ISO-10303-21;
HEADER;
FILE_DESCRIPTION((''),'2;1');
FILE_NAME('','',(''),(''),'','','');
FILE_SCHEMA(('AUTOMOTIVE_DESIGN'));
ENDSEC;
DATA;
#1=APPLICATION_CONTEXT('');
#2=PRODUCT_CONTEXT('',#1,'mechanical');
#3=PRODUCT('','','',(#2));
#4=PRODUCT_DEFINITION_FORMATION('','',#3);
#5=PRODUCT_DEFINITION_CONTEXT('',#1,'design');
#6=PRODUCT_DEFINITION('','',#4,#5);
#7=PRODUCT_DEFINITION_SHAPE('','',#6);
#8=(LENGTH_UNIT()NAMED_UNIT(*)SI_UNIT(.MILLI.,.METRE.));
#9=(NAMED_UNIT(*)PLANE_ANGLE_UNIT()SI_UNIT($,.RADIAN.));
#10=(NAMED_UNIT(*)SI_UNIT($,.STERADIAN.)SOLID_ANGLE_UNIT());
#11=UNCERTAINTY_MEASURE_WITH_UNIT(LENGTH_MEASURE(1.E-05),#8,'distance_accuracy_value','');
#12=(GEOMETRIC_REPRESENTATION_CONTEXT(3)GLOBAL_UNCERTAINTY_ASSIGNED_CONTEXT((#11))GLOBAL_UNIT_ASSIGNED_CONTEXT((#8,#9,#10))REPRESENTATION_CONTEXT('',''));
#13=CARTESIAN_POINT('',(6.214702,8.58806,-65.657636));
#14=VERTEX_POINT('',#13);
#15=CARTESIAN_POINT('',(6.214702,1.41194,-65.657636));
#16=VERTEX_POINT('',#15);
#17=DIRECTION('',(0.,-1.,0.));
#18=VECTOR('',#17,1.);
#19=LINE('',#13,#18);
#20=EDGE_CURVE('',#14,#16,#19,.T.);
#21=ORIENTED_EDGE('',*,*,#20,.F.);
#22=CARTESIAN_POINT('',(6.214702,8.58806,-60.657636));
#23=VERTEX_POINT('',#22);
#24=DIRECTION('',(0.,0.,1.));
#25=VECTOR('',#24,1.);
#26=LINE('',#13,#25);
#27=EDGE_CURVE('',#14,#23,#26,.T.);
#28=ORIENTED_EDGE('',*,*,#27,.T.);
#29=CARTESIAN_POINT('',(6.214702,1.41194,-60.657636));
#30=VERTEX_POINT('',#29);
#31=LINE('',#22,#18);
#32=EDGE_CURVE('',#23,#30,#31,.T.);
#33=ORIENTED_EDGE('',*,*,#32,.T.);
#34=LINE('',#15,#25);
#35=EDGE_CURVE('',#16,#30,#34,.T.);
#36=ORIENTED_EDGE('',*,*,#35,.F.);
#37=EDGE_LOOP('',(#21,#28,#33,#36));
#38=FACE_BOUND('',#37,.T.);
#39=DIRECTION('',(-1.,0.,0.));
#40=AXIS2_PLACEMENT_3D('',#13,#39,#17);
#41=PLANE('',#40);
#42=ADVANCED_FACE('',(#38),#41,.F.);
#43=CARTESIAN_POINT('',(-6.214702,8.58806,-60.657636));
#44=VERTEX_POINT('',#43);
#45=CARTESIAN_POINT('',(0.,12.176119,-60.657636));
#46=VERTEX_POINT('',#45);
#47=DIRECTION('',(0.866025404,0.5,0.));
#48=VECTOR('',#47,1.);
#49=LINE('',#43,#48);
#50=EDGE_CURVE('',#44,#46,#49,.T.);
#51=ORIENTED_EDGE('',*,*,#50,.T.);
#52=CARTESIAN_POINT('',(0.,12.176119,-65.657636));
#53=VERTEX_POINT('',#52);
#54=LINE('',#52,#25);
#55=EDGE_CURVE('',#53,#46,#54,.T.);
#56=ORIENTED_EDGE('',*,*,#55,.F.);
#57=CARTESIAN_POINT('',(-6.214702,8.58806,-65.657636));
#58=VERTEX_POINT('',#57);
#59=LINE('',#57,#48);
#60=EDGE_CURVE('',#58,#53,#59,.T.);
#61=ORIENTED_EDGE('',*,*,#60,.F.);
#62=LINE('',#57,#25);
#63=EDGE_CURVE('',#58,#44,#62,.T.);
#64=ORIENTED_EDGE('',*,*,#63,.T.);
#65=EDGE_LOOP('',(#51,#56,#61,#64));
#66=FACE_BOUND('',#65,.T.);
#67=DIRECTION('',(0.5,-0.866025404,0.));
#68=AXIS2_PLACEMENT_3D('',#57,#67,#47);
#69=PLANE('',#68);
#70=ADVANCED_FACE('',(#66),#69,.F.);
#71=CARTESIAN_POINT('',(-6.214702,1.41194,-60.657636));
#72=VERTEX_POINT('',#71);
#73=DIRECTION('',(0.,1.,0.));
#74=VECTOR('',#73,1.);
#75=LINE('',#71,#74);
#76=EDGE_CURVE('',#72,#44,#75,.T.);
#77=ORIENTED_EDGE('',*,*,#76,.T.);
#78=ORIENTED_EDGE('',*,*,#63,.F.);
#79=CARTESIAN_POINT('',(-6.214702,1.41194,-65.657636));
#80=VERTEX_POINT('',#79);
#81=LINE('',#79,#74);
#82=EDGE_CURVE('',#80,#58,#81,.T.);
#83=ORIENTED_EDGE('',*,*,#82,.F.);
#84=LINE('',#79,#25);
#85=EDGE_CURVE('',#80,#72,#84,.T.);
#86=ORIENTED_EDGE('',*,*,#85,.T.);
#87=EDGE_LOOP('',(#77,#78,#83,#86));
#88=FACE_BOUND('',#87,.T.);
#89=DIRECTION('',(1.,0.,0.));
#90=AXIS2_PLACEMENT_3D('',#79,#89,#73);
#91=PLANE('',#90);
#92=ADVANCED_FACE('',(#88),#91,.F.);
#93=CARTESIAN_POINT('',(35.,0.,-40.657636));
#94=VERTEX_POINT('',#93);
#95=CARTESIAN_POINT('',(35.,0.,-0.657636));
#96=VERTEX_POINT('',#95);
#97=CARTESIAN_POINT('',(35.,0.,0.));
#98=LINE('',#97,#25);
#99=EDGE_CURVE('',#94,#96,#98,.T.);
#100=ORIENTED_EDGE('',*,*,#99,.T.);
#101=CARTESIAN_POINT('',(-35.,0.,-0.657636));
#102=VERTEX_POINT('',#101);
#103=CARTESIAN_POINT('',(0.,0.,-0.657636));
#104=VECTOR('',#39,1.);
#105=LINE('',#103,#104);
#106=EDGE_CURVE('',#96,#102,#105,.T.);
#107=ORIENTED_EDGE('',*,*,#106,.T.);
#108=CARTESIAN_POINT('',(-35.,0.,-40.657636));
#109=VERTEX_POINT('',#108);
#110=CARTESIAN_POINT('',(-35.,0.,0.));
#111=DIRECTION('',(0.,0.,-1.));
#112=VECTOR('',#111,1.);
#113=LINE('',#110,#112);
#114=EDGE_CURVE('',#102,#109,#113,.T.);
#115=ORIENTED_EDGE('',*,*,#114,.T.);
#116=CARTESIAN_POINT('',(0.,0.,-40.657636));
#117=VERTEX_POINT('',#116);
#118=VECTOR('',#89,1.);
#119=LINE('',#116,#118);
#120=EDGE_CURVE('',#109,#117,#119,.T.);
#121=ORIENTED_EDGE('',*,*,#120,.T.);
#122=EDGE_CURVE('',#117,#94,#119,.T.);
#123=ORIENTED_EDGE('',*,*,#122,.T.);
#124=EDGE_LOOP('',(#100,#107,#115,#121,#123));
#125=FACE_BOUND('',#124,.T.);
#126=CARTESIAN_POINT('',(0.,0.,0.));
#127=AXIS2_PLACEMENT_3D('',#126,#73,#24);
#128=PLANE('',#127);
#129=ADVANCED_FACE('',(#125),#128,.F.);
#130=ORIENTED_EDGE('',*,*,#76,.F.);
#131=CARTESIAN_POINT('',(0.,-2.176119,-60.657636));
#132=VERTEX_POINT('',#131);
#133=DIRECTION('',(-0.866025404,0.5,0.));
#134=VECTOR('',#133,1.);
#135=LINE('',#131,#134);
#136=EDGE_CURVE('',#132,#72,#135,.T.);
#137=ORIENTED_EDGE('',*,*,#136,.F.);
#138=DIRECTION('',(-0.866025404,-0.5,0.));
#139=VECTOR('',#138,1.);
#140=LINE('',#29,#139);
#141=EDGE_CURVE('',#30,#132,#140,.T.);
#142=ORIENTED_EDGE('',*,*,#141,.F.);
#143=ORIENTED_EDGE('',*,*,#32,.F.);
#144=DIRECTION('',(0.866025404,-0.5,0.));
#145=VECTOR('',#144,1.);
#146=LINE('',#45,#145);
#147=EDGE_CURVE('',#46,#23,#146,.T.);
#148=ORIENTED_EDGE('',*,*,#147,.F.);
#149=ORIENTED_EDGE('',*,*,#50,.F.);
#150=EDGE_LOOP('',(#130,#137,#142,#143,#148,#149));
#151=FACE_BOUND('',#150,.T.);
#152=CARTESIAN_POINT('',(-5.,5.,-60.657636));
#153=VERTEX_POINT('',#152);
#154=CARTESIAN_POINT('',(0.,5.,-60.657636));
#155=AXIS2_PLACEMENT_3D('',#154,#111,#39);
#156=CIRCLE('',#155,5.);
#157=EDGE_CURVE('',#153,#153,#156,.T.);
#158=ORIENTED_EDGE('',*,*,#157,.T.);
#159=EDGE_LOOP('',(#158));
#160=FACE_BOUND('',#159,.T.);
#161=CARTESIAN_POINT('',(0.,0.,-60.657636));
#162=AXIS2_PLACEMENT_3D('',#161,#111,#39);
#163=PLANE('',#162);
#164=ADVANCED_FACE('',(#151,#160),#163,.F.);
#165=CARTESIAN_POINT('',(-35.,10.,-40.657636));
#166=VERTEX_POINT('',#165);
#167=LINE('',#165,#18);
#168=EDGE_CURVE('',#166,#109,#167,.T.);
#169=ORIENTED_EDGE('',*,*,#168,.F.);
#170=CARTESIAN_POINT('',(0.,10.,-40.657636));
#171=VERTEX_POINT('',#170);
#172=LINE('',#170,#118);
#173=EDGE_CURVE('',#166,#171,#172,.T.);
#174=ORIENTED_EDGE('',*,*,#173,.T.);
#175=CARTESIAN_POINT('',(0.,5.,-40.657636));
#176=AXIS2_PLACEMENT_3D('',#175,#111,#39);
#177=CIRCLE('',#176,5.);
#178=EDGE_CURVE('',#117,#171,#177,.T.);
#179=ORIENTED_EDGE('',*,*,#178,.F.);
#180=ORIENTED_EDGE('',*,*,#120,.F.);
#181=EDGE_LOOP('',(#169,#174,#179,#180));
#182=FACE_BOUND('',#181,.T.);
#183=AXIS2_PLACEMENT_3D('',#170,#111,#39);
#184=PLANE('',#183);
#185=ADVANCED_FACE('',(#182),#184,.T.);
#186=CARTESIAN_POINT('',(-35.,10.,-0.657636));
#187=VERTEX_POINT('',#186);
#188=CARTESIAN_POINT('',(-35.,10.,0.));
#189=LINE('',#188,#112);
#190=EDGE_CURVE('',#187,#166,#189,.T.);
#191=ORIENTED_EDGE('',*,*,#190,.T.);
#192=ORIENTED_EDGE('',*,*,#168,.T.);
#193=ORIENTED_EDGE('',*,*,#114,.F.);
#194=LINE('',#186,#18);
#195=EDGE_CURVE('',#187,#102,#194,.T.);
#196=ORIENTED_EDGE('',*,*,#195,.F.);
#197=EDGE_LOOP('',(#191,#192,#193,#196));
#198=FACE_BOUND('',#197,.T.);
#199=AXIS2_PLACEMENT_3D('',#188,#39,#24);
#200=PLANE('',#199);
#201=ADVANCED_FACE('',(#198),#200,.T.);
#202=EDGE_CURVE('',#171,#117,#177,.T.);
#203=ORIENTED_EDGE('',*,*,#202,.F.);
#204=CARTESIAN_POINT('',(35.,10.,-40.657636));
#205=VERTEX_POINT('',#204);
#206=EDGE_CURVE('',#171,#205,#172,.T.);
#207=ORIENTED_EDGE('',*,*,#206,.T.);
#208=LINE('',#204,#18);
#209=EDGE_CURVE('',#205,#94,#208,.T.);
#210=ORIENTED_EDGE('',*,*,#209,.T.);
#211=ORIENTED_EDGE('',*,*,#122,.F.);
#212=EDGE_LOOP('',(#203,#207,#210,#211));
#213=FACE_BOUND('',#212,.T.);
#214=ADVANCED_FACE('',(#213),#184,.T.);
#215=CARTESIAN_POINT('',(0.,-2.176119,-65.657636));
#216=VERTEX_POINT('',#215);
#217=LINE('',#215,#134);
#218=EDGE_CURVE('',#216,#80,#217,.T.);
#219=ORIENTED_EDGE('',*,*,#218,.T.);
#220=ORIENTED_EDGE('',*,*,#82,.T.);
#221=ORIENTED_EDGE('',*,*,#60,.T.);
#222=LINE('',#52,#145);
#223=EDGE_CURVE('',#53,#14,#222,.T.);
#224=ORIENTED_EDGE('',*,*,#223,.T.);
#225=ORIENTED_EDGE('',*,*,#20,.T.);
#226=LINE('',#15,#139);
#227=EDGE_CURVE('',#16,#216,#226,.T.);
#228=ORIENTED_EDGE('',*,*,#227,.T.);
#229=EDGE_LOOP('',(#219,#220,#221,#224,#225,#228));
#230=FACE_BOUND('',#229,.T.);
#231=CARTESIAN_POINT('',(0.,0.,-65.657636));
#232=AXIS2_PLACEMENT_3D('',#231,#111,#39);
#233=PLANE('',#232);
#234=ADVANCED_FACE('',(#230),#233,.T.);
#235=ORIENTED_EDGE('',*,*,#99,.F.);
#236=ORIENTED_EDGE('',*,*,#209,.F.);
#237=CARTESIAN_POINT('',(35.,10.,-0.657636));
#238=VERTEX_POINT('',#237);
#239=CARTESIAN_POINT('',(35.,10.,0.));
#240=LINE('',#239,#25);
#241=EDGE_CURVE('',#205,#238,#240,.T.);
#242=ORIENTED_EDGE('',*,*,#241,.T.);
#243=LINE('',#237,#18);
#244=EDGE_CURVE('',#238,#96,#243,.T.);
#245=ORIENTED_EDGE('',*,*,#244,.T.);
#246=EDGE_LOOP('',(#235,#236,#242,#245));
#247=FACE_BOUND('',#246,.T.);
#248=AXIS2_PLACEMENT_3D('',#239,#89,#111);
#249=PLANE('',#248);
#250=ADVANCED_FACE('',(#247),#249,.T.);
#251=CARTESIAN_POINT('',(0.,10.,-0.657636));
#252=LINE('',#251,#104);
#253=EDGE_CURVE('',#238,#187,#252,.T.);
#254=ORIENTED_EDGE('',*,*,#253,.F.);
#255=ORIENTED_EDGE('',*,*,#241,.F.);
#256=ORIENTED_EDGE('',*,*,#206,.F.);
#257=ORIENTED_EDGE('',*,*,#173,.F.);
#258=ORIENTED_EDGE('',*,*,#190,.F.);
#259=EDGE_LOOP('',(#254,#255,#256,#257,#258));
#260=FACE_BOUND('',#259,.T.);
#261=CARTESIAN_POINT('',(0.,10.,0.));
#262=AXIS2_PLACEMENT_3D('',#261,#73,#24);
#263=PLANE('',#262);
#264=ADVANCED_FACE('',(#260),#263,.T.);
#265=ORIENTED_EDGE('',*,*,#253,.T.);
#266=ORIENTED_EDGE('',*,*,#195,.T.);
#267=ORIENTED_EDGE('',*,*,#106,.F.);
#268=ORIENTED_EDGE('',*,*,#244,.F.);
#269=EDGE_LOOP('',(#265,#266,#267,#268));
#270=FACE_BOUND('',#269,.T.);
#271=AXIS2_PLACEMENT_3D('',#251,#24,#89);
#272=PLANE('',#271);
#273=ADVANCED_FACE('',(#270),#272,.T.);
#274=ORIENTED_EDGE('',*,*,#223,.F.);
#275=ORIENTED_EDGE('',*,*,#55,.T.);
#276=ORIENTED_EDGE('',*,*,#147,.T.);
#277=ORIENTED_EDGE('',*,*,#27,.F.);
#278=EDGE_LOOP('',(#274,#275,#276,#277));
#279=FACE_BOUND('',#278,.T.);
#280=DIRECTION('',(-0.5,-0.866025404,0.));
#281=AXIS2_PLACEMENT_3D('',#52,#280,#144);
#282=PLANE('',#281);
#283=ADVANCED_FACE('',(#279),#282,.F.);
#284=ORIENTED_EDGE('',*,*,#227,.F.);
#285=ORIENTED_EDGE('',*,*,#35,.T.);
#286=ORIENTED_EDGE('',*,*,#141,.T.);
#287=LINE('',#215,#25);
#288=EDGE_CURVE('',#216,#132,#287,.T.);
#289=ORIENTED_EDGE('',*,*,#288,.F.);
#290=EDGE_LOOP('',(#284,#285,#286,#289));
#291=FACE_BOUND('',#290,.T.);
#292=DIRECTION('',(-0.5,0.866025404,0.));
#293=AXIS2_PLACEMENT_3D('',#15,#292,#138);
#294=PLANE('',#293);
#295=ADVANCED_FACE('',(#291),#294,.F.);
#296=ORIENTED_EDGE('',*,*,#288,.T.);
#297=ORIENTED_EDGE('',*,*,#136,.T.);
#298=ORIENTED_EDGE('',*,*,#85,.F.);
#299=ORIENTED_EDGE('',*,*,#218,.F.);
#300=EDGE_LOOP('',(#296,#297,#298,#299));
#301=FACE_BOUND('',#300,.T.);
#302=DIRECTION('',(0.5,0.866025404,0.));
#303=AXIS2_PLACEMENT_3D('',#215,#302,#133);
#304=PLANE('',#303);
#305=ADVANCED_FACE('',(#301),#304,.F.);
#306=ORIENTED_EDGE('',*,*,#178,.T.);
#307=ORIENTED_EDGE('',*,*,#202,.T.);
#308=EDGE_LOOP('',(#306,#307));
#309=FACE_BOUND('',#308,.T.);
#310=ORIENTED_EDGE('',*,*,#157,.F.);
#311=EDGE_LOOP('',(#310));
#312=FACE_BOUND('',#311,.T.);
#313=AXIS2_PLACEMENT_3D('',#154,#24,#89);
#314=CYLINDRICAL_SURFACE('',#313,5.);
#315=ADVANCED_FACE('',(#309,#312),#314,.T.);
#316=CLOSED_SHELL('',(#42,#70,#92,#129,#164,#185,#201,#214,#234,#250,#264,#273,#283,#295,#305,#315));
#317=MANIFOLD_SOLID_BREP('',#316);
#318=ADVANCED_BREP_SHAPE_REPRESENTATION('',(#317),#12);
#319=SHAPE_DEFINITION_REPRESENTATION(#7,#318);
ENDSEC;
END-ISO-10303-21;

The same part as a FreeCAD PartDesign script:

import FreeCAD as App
import Part
import Sketcher
from FreeCAD import Vector
Q = App.Units.Quantity


def add_polygon(sketch, points):
    """Adds a closed chain of lines whose ends are joined by coincident constraints."""
    first, n = sketch.GeometryCount, len(points)
    for a, b in zip(points, points[1:] + points[:1]):
        sketch.addGeometry(Part.LineSegment(App.Vector(*a, 0), App.Vector(*b, 0)), False)
    for i in range(n):
        sketch.addConstraint(Sketcher.Constraint("Coincident", first + i, 2, first + (i + 1) % n, 1))

doc = App.newDocument("Part")
body = doc.addObject("PartDesign::Body", "Body")

sketch1 = doc.addObject("Sketcher::SketchObject", "Sketch")
body.addObject(sketch1)
sketch1.AttachmentSupport = (doc.XZ_Plane, [""])
sketch1.MapMode = "FlatFace"
add_polygon(sketch1, [(35, -41), (-35, -41), (-35, -1), (35, -1)])
sketch1.addConstraint([
    Sketcher.Constraint("Horizontal", 0),
    Sketcher.Constraint("Vertical", 1),
    Sketcher.Constraint("Horizontal", 2),
    Sketcher.Constraint("Vertical", 3),
    Sketcher.Constraint("DistanceX", 0, 2, 0, 1, Q("70 mm")),
    Sketcher.Constraint("DistanceY", 1, 1, 1, 2, Q("40 mm")),
    Sketcher.Constraint("DistanceX", 0, 2, -1, 1, Q("35 mm")),
    Sketcher.Constraint("DistanceY", 0, 2, -1, 1, Q("40.657636 mm")),
])
pad1 = doc.addObject("PartDesign::Pad", "Pad")
body.addObject(pad1)
pad1.Profile = sketch1
pad1.Length = 10
pad1.Reversed = True

sketch2 = doc.addObject("Sketcher::SketchObject", "Sketch001")
body.addObject(sketch2)
sketch2.AttachmentSupport = (doc.XY_Plane, [""])
sketch2.MapMode = "FlatFace"
sketch2.AttachmentOffset = App.Placement(Vector(0, 0, -40.657636), App.Rotation())
sketch2.addGeometry(Part.Circle(Vector(0, 5, 0), Vector(0, 0, 1), 5), False)
sketch2.addConstraint([
    Sketcher.Constraint("PointOnObject", 0, 3, -2),
    Sketcher.Constraint("Diameter", 0, Q("10 mm")),
    Sketcher.Constraint("DistanceY", -1, 1, 0, 3, Q("5 mm")),
])
pad2 = doc.addObject("PartDesign::Pad", "Pad001")
body.addObject(pad2)
pad2.Profile = sketch2
pad2.Length = 20
pad2.Reversed = True

sketch3 = doc.addObject("Sketcher::SketchObject", "Sketch002")
body.addObject(sketch3)
sketch3.AttachmentSupport = (doc.XY_Plane, [""])
sketch3.MapMode = "FlatFace"
sketch3.AttachmentOffset = App.Placement(Vector(0, 0, -60.657636), App.Rotation())
add_polygon(sketch3, [(0, -2), (-6, 1), (-6, 9), (0, 12), (6, 9), (6, 1)])
sketch3.addConstraint([
    Sketcher.Constraint("Vertical", 1),
    Sketcher.Constraint("Vertical", 4),
    Sketcher.Constraint("Symmetric", 1, 2, 3, 2, -2),
    Sketcher.Constraint("PointOnObject", 2, 2, -2),
    Sketcher.Constraint("PointOnObject", 5, 2, -2),
    Sketcher.Constraint("Parallel", 0, 3),
    Sketcher.Constraint("Parallel", 2, 5),
    Sketcher.Constraint("Angle", 0, Q("150 deg")),
    Sketcher.Constraint("DistanceY", 1, 1, 1, 2, Q("7.176119 mm")),
    Sketcher.Constraint("DistanceX", 0, 2, -1, 1, Q("6.214702 mm")),
    Sketcher.Constraint("DistanceY", -1, 1, 0, 2, Q("1.41194 mm")),
])
pad3 = doc.addObject("PartDesign::Pad", "Pad002")
body.addObject(pad3)
pad3.Profile = sketch3
pad3.Length = 5
pad3.Reversed = True

doc.recompute()
